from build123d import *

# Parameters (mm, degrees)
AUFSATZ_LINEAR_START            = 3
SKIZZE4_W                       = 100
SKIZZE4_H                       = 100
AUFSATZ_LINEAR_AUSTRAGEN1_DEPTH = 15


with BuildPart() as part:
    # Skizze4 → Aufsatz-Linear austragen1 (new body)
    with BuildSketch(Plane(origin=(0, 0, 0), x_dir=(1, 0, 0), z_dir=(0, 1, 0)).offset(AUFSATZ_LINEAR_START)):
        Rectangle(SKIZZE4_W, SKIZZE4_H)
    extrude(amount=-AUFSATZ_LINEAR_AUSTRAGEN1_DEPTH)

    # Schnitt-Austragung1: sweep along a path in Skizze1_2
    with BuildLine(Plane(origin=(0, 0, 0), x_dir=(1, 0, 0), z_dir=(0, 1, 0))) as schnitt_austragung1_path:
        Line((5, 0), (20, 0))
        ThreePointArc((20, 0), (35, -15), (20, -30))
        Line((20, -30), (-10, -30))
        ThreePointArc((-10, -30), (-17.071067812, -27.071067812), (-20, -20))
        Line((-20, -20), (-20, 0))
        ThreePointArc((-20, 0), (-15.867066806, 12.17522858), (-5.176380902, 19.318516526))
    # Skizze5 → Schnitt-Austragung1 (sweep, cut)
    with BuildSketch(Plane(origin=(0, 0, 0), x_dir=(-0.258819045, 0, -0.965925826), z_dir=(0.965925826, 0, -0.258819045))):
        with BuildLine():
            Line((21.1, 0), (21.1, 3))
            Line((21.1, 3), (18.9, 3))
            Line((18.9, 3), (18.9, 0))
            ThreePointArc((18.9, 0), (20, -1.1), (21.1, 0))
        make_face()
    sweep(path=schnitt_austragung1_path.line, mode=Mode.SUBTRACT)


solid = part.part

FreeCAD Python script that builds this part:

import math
import FreeCAD as App
import Part
import Sketcher


def add_polygon(sketch, points):
    """Adds a closed chain of lines whose ends are joined by coincident constraints."""
    first, n = sketch.GeometryCount, len(points)
    for a, b in zip(points, points[1:] + points[:1]):
        sketch.addGeometry(Part.LineSegment(App.Vector(*a, 0), App.Vector(*b, 0)), False)
    for i in range(n):
        sketch.addConstraint(Sketcher.Constraint("Coincident", first + i, 2, first + (i + 1) % n, 1))

doc = App.newDocument("Part")
body = doc.addObject("PartDesign::Body", "Body")

sketch1 = body.newObject("Sketcher::SketchObject", "Sketch")
sketch1.AttachmentSupport = (doc.getObject("XZ_Plane"), [""])
sketch1.MapMode = "FlatFace"
sketch1.AttachmentOffset = App.Placement(App.Vector(0, 0, -3), App.Rotation())
add_polygon(sketch1, [(-50, -50), (-50, 50), (50, 50), (50, -50)])
sketch1.addConstraint([
    Sketcher.Constraint("Vertical", 0),
    Sketcher.Constraint("Horizontal", 1),
    Sketcher.Constraint("Vertical", 2),
    Sketcher.Constraint("Horizontal", 3),
    Sketcher.Constraint("Symmetric", 0, 2, 2, 2, -1, 1),
    Sketcher.Constraint("Equal", 3, 0),
    Sketcher.Constraint("DistanceX", 1, 1, 1, 2, 100.0),
])
pad1 = body.newObject("PartDesign::Pad", "Pad")
pad1.Profile = sketch1
pad1.Length = 15

sketch2 = body.newObject("Sketcher::SketchObject", "Sketch001")
sketch2.Placement = App.Placement(App.Vector(0, 0, 0), App.Rotation(App.Vector(-0.258819045, 0, -0.965925826), App.Vector(0, 0.999999999, 0), App.Vector(0.965925826, 0, -0.258819045), "ZXY"))
sketch2.addGeometry([
    Part.LineSegment(App.Vector(21.1, 0, 0), App.Vector(21.1, 3, 0)),
    Part.LineSegment(App.Vector(21.1, 3, 0), App.Vector(18.9, 3, 0)),
    Part.LineSegment(App.Vector(18.9, 3, 0), App.Vector(18.9, 0, 0)),
    Part.ArcOfCircle(Part.Circle(App.Vector(20, 0, 0), App.Vector(0, 0, 1), 1.1), math.radians(180), math.radians(360)),
], False)
sketch2.addConstraint([
    Sketcher.Constraint("Coincident", 0, 2, 1, 1),
    Sketcher.Constraint("Coincident", 1, 2, 2, 1),
    Sketcher.Constraint("Tangent", 2, 2, 3, 1),
    Sketcher.Constraint("Tangent", 3, 2, 0, 1),
    Sketcher.Constraint("Vertical", 0),
    Sketcher.Constraint("Horizontal", 1),
    Sketcher.Constraint("Vertical", 2),
    Sketcher.Constraint("PointOnObject", 3, 3, -1),
    Sketcher.Constraint("Radius", 3, 1.1),
    Sketcher.Constraint("DistanceY", 0, 1, 0, 2, 3.0),
    Sketcher.Constraint("DistanceX", -1, 1, 3, 3, 20.0),
])

sketch3 = body.newObject("Sketcher::SketchObject", "Sketch002")
sketch3.AttachmentSupport = (doc.getObject("XZ_Plane"), [""])
sketch3.MapMode = "FlatFace"
sketch3.addGeometry([
    Part.LineSegment(App.Vector(5, 0, 0), App.Vector(20, 0, 0)),
    Part.ArcOfCircle(Part.Circle(App.Vector(20, 15, 0), App.Vector(0, 0, 1), 15), math.radians(-90), math.radians(90)),
    Part.LineSegment(App.Vector(20, 30, 0), App.Vector(-10, 30, 0)),
    Part.ArcOfCircle(Part.Circle(App.Vector(-10, 20, 0), App.Vector(0, 0, 1), 10), math.radians(90), math.radians(180)),
    Part.LineSegment(App.Vector(-20, 20, 0), App.Vector(-20, 0, 0)),
    Part.ArcOfCircle(Part.Circle(App.Vector(0, 0, 0), App.Vector(0, 0, 1), 20), math.radians(180), math.radians(255)),
], False)
sketch3.addConstraint([
    Sketcher.Constraint("Tangent", 0, 2, 1, 1),
    Sketcher.Constraint("Tangent", 1, 2, 2, 1),
    Sketcher.Constraint("Tangent", 2, 2, 3, 1),
    Sketcher.Constraint("Tangent", 3, 2, 4, 1),
    Sketcher.Constraint("Tangent", 4, 2, 5, 1),
    Sketcher.Constraint("Horizontal", 0),
    Sketcher.Constraint("Horizontal", 2),
    Sketcher.Constraint("Vertical", 4),
    Sketcher.Constraint("Coincident", 5, 3, -1, 1),
    Sketcher.Constraint("Symmetric", 0, 2, 4, 2, -1, 1),
    Sketcher.Constraint("Radius", 1, 15.0),
    Sketcher.Constraint("Radius", 3, 10.0),
    Sketcher.Constraint("Radius", 5, 20.0),
    Sketcher.Constraint("DistanceX", 0, 1, 0, 2, 15.0),
    Sketcher.Constraint("DistanceX", 5, 2, -1, 1, 5.176381),
])
doc.recompute()

subtractivepipe = body.newObject("PartDesign::SubtractivePipe", "SubtractivePipe")
subtractivepipe.Profile = sketch2
subtractivepipe.Spine = (sketch3, ["Edge1", "Edge2", "Edge3", "Edge4", "Edge5", "Edge6"])

doc.recompute()
